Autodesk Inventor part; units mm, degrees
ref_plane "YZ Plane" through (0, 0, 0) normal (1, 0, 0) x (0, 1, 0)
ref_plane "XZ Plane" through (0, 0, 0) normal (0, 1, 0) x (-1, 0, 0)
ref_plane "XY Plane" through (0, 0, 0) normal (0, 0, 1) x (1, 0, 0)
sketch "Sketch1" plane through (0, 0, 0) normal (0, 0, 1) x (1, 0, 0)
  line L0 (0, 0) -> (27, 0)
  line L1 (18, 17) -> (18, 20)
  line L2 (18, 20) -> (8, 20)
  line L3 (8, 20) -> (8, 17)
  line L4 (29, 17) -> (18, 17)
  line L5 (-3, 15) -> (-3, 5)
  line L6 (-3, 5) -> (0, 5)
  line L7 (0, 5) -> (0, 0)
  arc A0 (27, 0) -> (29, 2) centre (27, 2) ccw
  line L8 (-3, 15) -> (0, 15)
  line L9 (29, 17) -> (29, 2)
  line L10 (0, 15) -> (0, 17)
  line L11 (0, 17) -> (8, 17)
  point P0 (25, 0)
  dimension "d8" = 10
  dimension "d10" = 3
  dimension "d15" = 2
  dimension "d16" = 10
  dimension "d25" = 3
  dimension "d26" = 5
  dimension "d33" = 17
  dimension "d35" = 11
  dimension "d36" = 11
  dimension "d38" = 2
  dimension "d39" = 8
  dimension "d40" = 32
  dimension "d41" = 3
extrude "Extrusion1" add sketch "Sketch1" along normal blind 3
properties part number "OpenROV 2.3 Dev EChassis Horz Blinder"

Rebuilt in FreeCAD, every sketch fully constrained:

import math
import FreeCAD as App
import Part
import Sketcher
from FreeCAD import Vector
Q = App.Units.Quantity

doc = App.newDocument("Part")
body = doc.addObject("PartDesign::Body", "Body")

# Sketch on XY plane
sketch1 = body.newObject("Sketcher::SketchObject", "Sketch")
sketch1.AttachmentSupport = (doc.getObject("XY_Plane"), [""])
sketch1.MapMode = "FlatFace"
sketch1.addGeometry([
    Part.LineSegment(Vector(0, 5, 0), Vector(0, 0, 0)),  # 0
    Part.LineSegment(Vector(0, 0, 0), Vector(27, 0, 0)),  # 1
    Part.ArcOfCircle(Part.Circle(Vector(27, 2, 0), Vector(0, 0, 1), 2), math.radians(-90), math.radians(0)),  # 2
    Part.LineSegment(Vector(29, 2, 0), Vector(29, 17, 0)),  # 3
    Part.LineSegment(Vector(29, 17, 0), Vector(18, 17, 0)),  # 4
    Part.LineSegment(Vector(18, 17, 0), Vector(18, 20, 0)),  # 5
    Part.LineSegment(Vector(18, 20, 0), Vector(8, 20, 0)),  # 6
    Part.LineSegment(Vector(8, 20, 0), Vector(8, 17, 0)),  # 7
    Part.LineSegment(Vector(8, 17, 0), Vector(0, 17, 0)),  # 8
    Part.LineSegment(Vector(0, 17, 0), Vector(0, 15, 0)),  # 9
    Part.LineSegment(Vector(0, 15, 0), Vector(-3, 15, 0)),  # 10
    Part.LineSegment(Vector(-3, 15, 0), Vector(-3, 5, 0)),  # 11
    Part.LineSegment(Vector(-3, 5, 0), Vector(0, 5, 0)),  # 12
], False)
sketch1.addConstraint([
    Sketcher.Constraint("Coincident", 0, 2, 1, 1),
    Sketcher.Constraint("Tangent", 1, 2, 2, 1),
    Sketcher.Constraint("Tangent", 2, 2, 3, 1),
    Sketcher.Constraint("Coincident", 3, 2, 4, 1),
    Sketcher.Constraint("Coincident", 4, 2, 5, 1),
    Sketcher.Constraint("Coincident", 5, 2, 6, 1),
    Sketcher.Constraint("Coincident", 6, 2, 7, 1),
    Sketcher.Constraint("Coincident", 7, 2, 8, 1),
    Sketcher.Constraint("Coincident", 8, 2, 9, 1),
    Sketcher.Constraint("Coincident", 9, 2, 10, 1),
    Sketcher.Constraint("Coincident", 10, 2, 11, 1),
    Sketcher.Constraint("Coincident", 11, 2, 12, 1),
    Sketcher.Constraint("Coincident", 12, 2, 0, 1),
    Sketcher.Constraint("Vertical", 0),
    Sketcher.Constraint("Horizontal", 1),
    Sketcher.Constraint("Vertical", 3),
    Sketcher.Constraint("Horizontal", 4),
    Sketcher.Constraint("Vertical", 5),
    Sketcher.Constraint("Horizontal", 6),
    Sketcher.Constraint("Vertical", 7),
    Sketcher.Constraint("Horizontal", 8),
    Sketcher.Constraint("Vertical", 9),
    Sketcher.Constraint("Horizontal", 10),
    Sketcher.Constraint("Vertical", 11),
    Sketcher.Constraint("Horizontal", 12),
    Sketcher.Constraint("Coincident", 0, 2, -1, 1),
    Sketcher.Constraint("PointOnObject", 8, 2, -2),
    Sketcher.Constraint("Horizontal", 4, 2, 7, 2),
    Sketcher.Constraint("Equal", 12, 5),
    Sketcher.Constraint("Equal", 6, 11),
    Sketcher.Constraint("Radius", 2, Q("2 mm")),
    Sketcher.Constraint("DistanceX", 4, 2, 4, 1, Q("11 mm")),
    Sketcher.Constraint("DistanceX", 6, 2, 6, 1, Q("10 mm")),
    Sketcher.Constraint("DistanceX", 8, 2, 8, 1, Q("8 mm")),
    Sketcher.Constraint("DistanceX", 10, 2, 10, 1, Q("3 mm")),
    Sketcher.Constraint("DistanceY", 0, 2, 0, 1, Q("5 mm")),
    Sketcher.Constraint("DistanceY", 9, 2, 9, 1, Q("2 mm")),
])
pad1 = body.newObject("PartDesign::Pad", "Pad")
pad1.Profile = sketch1
pad1.Length = 3

doc.recompute()
